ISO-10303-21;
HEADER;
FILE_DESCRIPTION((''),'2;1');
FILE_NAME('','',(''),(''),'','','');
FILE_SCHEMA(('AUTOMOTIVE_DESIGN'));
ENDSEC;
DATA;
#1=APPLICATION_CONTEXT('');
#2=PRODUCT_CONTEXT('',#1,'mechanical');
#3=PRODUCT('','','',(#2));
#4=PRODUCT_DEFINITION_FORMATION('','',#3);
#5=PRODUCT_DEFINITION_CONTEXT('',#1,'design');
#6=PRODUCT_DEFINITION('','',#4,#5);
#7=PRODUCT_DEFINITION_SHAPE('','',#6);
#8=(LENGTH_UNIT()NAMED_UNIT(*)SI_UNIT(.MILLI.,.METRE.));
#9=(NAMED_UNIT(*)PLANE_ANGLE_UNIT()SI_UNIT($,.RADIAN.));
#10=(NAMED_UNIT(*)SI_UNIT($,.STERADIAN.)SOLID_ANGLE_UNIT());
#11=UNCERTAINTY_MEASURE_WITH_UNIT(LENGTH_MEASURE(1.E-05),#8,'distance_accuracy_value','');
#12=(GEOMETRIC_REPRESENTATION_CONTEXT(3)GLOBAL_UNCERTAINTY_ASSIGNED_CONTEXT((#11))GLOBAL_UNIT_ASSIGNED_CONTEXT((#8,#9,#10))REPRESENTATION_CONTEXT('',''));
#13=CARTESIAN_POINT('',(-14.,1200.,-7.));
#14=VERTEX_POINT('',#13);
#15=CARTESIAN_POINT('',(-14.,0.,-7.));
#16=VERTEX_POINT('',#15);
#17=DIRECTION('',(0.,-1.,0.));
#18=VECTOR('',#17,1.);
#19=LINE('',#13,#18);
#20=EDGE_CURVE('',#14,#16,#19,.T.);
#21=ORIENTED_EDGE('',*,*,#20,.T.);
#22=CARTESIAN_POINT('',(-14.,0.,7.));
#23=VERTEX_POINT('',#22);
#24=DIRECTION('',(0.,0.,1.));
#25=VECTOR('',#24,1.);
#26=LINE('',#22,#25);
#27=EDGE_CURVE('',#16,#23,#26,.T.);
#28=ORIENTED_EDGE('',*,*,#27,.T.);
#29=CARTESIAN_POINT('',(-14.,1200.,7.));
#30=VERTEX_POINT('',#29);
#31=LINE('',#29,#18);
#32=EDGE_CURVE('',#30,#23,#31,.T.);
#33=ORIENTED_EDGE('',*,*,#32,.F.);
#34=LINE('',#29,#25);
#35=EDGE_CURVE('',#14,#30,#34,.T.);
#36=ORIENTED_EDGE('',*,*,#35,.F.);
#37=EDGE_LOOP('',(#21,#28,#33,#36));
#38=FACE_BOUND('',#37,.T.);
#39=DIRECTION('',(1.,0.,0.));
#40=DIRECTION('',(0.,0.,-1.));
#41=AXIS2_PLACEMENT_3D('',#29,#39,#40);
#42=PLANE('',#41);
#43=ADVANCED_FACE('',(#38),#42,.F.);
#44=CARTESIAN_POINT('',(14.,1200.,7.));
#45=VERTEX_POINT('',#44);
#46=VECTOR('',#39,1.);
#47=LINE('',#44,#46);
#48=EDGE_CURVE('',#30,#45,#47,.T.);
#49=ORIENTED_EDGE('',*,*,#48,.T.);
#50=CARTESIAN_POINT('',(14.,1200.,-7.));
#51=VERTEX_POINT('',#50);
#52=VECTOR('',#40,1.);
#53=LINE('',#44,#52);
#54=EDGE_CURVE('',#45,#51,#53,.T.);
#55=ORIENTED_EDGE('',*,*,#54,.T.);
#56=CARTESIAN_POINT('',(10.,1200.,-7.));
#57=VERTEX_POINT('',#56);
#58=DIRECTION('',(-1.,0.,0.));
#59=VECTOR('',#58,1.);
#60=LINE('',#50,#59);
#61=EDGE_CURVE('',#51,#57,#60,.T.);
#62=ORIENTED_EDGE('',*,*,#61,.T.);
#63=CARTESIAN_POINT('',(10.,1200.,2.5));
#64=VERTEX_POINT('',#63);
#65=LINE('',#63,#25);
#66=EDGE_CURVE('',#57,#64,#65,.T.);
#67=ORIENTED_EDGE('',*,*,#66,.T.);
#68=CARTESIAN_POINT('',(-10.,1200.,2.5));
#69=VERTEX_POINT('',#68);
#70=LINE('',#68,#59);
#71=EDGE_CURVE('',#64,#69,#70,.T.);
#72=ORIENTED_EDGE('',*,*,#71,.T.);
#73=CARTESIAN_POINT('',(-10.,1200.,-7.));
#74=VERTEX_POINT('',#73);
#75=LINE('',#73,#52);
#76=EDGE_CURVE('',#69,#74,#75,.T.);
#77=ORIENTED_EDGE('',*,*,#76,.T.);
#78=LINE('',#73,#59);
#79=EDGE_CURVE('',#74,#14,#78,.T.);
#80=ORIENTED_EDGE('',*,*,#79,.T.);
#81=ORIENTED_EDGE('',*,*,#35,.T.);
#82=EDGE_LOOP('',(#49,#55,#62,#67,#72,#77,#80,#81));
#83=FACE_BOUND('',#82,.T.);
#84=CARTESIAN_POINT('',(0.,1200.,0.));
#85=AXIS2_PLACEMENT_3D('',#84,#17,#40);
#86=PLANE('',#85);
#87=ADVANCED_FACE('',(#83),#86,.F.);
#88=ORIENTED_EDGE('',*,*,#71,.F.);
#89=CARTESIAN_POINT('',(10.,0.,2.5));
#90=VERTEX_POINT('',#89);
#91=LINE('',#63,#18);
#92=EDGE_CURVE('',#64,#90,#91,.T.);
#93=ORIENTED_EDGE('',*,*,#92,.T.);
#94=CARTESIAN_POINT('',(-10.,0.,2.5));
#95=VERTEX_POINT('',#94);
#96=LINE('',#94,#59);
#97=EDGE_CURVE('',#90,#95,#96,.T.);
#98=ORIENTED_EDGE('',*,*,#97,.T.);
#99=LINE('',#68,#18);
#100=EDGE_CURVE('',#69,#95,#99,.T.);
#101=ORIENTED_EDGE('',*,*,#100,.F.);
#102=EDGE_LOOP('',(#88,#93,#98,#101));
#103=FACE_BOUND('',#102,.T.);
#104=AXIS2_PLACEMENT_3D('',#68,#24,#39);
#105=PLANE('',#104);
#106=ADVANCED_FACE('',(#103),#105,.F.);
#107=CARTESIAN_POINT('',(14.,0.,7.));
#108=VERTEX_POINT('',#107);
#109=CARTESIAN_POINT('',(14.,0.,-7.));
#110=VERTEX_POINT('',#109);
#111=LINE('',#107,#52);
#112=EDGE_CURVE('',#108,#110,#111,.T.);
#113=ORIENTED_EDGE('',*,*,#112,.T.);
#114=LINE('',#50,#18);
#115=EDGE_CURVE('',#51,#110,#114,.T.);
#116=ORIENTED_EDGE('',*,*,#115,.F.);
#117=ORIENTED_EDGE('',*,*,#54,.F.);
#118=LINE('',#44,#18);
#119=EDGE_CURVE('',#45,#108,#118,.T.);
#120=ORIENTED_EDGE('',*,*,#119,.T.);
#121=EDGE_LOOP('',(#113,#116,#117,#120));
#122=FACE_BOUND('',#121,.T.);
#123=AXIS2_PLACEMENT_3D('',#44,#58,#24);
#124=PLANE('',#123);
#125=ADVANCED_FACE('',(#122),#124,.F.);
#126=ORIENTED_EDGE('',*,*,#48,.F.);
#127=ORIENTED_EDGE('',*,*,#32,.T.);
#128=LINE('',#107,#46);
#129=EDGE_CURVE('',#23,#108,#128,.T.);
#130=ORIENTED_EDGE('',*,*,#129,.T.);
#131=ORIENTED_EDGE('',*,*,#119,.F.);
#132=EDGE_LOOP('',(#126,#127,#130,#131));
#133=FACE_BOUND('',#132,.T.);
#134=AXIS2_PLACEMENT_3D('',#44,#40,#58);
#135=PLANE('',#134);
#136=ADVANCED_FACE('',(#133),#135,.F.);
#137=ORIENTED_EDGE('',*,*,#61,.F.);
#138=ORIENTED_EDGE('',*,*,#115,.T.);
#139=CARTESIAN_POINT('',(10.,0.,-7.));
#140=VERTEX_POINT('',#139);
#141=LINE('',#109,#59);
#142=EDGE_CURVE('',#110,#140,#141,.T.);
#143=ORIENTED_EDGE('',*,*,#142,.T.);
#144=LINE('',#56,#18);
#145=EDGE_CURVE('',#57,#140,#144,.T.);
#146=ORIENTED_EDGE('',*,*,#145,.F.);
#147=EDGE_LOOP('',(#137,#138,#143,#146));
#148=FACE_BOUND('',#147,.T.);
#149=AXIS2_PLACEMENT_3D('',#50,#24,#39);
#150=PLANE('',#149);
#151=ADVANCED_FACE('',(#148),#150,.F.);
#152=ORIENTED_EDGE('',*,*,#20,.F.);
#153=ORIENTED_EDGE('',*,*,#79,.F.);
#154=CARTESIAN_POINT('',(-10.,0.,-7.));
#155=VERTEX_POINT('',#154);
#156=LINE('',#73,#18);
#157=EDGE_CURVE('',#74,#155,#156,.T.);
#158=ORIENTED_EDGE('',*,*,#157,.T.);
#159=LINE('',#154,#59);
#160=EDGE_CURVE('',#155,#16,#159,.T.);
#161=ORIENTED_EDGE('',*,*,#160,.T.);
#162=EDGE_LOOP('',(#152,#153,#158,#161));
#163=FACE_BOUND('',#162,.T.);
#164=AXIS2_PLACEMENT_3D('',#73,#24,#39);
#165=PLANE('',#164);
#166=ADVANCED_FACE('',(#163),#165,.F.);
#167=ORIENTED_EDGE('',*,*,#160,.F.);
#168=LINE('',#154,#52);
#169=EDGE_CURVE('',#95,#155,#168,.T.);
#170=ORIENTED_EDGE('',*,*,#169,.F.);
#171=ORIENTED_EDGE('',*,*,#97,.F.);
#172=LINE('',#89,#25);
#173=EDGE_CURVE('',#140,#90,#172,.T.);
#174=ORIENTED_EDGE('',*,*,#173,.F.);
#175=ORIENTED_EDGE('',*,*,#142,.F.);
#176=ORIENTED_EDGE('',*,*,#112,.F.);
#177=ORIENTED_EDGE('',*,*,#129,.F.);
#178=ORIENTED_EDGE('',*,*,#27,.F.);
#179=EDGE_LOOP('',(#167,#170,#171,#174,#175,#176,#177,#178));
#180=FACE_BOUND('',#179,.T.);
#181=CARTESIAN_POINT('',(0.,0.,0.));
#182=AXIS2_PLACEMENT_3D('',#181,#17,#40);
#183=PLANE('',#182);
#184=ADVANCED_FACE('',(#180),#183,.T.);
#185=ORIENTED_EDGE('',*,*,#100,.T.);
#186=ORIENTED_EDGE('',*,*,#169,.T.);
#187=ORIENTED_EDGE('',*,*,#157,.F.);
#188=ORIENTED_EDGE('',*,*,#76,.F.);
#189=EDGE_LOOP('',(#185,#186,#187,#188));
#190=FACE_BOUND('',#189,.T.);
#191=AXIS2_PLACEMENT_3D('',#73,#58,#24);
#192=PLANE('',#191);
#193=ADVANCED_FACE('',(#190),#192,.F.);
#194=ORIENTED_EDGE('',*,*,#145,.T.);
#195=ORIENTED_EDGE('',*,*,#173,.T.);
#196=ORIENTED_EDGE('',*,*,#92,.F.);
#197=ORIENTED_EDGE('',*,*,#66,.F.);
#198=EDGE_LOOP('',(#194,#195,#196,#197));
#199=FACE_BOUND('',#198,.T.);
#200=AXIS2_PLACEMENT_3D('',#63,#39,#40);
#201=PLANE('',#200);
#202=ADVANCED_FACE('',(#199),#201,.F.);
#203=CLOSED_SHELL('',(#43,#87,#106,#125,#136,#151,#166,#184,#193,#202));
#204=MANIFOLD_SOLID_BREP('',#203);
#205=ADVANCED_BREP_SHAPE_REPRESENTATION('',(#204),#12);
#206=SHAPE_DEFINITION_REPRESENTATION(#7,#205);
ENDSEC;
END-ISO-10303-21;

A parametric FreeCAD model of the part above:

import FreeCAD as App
import Part
import Sketcher
from FreeCAD import Vector


def add_polygon(sketch, points):
    """Adds a closed chain of lines whose ends are joined by coincident constraints."""
    first, n = sketch.GeometryCount, len(points)
    for a, b in zip(points, points[1:] + points[:1]):
        sketch.addGeometry(Part.LineSegment(App.Vector(*a, 0), App.Vector(*b, 0)), False)
    for i in range(n):
        sketch.addConstraint(Sketcher.Constraint("Coincident", first + i, 2, first + (i + 1) % n, 1))

doc = App.newDocument("Part")
params = doc.addObject("Spreadsheet::Sheet", "Params")
for row, (alias, value) in enumerate([
    ("sketch1_width", "4 mm"),
    ("sketch1_width2", "28 mm"),
    ("sketch1_height", "14 mm"),
    ("sketch1_height2", "9.5 mm"),
    ("pad1_length", "1200 mm"),
], start=1):
    params.set(f"A{row}", alias)
    params.set(f"B{row}", "=" + value)
    params.setAlias(f"B{row}", alias)

body = doc.addObject("PartDesign::Body", "Body")

# Sketch on XZ plane
sketch1 = doc.addObject("Sketcher::SketchObject", "Sketch")
body.addObject(sketch1)
sketch1.AttachmentSupport = (doc.XZ_Plane, [""])
sketch1.MapMode = "FlatFace"
add_polygon(sketch1, [(-10, 2.5), (-10, -7), (-14, -7), (-14, 7), (14, 7), (14, -7), (10, -7), (10, 2.5)])  # lines 0-7
sketch1.addConstraint([
    Sketcher.Constraint("Vertical", 0),
    Sketcher.Constraint("Horizontal", 1),
    Sketcher.Constraint("Vertical", 2),
    Sketcher.Constraint("Horizontal", 3),
    Sketcher.Constraint("Vertical", 4),
    Sketcher.Constraint("Horizontal", 5),
    Sketcher.Constraint("Vertical", 6),
    Sketcher.Constraint("Horizontal", 7),
    Sketcher.Constraint("Symmetric", 1, 2, 3, 2, -1, 1),
    Sketcher.Constraint("Symmetric", 0, 2, 5, 2, -2),
    Sketcher.Constraint("DistanceX", 1, 2, 1, 1, 4.0),
    Sketcher.Constraint("DistanceX", 3, 1, 3, 2, 28.0),
    Sketcher.Constraint("DistanceY", 2, 1, 2, 2, 14.0),
    Sketcher.Constraint("DistanceY", 0, 2, 0, 1, 9.5),
])
sketch1.setExpression("Constraints[18]", "Params.sketch1_width")
sketch1.setExpression("Constraints[19]", "Params.sketch1_width2")
sketch1.setExpression("Constraints[20]", "Params.sketch1_height")
sketch1.setExpression("Constraints[21]", "Params.sketch1_height2")
pad1 = doc.addObject("PartDesign::Pad", "Pad")
body.addObject(pad1)
pad1.Profile = sketch1
pad1.setExpression("Length", "Params.pad1_length")
pad1.Reversed = True

doc.recompute()
